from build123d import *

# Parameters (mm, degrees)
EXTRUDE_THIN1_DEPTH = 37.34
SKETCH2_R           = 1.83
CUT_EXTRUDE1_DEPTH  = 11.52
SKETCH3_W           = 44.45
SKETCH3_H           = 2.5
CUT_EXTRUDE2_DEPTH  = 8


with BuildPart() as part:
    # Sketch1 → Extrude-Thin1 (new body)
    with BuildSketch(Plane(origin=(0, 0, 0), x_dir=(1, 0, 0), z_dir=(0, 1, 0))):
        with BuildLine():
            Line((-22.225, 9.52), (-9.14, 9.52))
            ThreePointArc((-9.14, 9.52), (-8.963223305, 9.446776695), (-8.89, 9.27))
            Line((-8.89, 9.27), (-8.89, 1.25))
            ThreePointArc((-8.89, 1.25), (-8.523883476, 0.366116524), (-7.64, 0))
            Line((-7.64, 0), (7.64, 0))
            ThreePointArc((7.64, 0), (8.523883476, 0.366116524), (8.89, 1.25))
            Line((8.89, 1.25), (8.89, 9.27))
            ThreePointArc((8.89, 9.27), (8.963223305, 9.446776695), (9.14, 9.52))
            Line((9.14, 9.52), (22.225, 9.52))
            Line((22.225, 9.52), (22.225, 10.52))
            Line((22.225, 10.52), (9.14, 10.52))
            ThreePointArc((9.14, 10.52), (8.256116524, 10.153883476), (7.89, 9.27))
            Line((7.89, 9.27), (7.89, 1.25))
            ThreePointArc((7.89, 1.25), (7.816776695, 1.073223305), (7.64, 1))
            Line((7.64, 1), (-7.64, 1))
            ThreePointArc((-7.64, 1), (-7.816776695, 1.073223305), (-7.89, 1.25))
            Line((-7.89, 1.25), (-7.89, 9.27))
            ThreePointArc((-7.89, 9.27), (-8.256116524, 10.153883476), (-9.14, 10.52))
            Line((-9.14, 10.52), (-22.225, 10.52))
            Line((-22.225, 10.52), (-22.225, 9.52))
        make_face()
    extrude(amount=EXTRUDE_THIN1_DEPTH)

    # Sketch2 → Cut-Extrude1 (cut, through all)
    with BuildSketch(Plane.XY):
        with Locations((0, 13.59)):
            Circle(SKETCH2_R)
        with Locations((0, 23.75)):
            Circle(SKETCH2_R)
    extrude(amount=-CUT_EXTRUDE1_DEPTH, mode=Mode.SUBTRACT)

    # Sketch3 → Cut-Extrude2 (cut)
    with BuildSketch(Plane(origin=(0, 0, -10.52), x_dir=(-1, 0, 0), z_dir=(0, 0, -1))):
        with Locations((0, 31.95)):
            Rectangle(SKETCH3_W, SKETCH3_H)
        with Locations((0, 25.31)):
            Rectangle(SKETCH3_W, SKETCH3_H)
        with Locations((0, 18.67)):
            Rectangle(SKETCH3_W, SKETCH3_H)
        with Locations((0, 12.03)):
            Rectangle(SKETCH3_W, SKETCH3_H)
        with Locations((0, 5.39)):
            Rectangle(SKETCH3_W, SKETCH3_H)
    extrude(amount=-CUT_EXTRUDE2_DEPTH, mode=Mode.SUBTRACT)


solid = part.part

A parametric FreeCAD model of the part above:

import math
import FreeCAD as App
import Part
import Sketcher
Q = App.Units.Quantity

doc = App.newDocument("Part")
body = doc.addObject("PartDesign::Body", "Body")

# Sketch on XZ plane
sketch1 = doc.addObject("Sketcher::SketchObject", "Sketch")
body.addObject(sketch1)
sketch1.AttachmentSupport = (doc.XZ_Plane, [""])
sketch1.MapMode = "FlatFace"
sketch1.addGeometry([
    Part.LineSegment(App.Vector(-22.23, -9.52, 0), App.Vector(-9.14, -9.52, 0)),  # 0
    Part.ArcOfCircle(Part.Circle(App.Vector(-9.14, -9.27, 0), App.Vector(0, 0, 1), 0.25), math.radians(-90), math.radians(0)),  # 1
    Part.LineSegment(App.Vector(-8.89, -9.27, 0), App.Vector(-8.89, -1.25, 0)),  # 2
    Part.ArcOfCircle(Part.Circle(App.Vector(-7.64, -1.25, 0), App.Vector(0, 0, 1), 1.25), math.radians(90), math.radians(180)),  # 3
    Part.LineSegment(App.Vector(-7.64, 0, 0), App.Vector(7.64, 0, 0)),  # 4
    Part.ArcOfCircle(Part.Circle(App.Vector(7.64, -1.25, 0), App.Vector(0, 0, 1), 1.25), math.radians(0), math.radians(90)),  # 5
    Part.LineSegment(App.Vector(8.89, -1.25, 0), App.Vector(8.89, -9.27, 0)),  # 6
    Part.ArcOfCircle(Part.Circle(App.Vector(9.14, -9.27, 0), App.Vector(0, 0, 1), 0.25), math.radians(-180), math.radians(-90)),  # 7
    Part.LineSegment(App.Vector(9.14, -9.52, 0), App.Vector(22.23, -9.52, 0)),  # 8
    Part.LineSegment(App.Vector(22.23, -9.52, 0), App.Vector(22.23, -10.52, 0)),  # 9
    Part.LineSegment(App.Vector(22.23, -10.52, 0), App.Vector(9.14, -10.52, 0)),  # 10
    Part.ArcOfCircle(Part.Circle(App.Vector(9.14, -9.27, 0), App.Vector(0, 0, 1), 1.25), math.radians(-180), math.radians(-90)),  # 11
    Part.LineSegment(App.Vector(7.89, -9.27, 0), App.Vector(7.89, -1.25, 0)),  # 12
    Part.ArcOfCircle(Part.Circle(App.Vector(7.64, -1.25, 0), App.Vector(0, 0, 1), 0.25), math.radians(0), math.radians(90)),  # 13
    Part.LineSegment(App.Vector(7.64, -1, 0), App.Vector(-7.64, -1, 0)),  # 14
    Part.ArcOfCircle(Part.Circle(App.Vector(-7.64, -1.25, 0), App.Vector(0, 0, 1), 0.25), math.radians(90), math.radians(180)),  # 15
    Part.LineSegment(App.Vector(-7.89, -1.25, 0), App.Vector(-7.89, -9.27, 0)),  # 16
    Part.ArcOfCircle(Part.Circle(App.Vector(-9.14, -9.27, 0), App.Vector(0, 0, 1), 1.25), math.radians(-90), math.radians(0)),  # 17
    Part.LineSegment(App.Vector(-9.14, -10.52, 0), App.Vector(-22.23, -10.52, 0)),  # 18
    Part.LineSegment(App.Vector(-22.23, -10.52, 0), App.Vector(-22.23, -9.52, 0)),  # 19
], False)
sketch1.addConstraint([
    Sketcher.Constraint("Tangent", 0, 2, 1, 1),
    Sketcher.Constraint("Tangent", 1, 2, 2, 1),
    Sketcher.Constraint("Tangent", 2, 2, 3, 2),
    Sketcher.Constraint("Tangent", 3, 1, 4, 1),
    Sketcher.Constraint("Tangent", 4, 2, 5, 2),
    Sketcher.Constraint("Tangent", 5, 1, 6, 1),
    Sketcher.Constraint("Tangent", 6, 2, 7, 1),
    Sketcher.Constraint("Tangent", 7, 2, 8, 1),
    Sketcher.Constraint("Coincident", 8, 2, 9, 1),
    Sketcher.Constraint("Coincident", 9, 2, 10, 1),
    Sketcher.Constraint("Tangent", 10, 2, 11, 2),
    Sketcher.Constraint("Tangent", 11, 1, 12, 1),
    Sketcher.Constraint("Tangent", 12, 2, 13, 1),
    Sketcher.Constraint("Tangent", 13, 2, 14, 1),
    Sketcher.Constraint("Tangent", 14, 2, 15, 1),
    Sketcher.Constraint("Tangent", 15, 2, 16, 1),
    Sketcher.Constraint("Tangent", 16, 2, 17, 2),
    Sketcher.Constraint("Tangent", 17, 1, 18, 1),
    Sketcher.Constraint("Coincident", 18, 2, 19, 1),
    Sketcher.Constraint("Coincident", 19, 2, 0, 1),
    Sketcher.Constraint("Horizontal", 0),
    Sketcher.Constraint("Vertical", 2),
    Sketcher.Constraint("Horizontal", 4),
    Sketcher.Constraint("Vertical", 6),
    Sketcher.Constraint("Horizontal", 8),
    Sketcher.Constraint("Vertical", 9),
    Sketcher.Constraint("Horizontal", 10),
    Sketcher.Constraint("Vertical", 12),
    Sketcher.Constraint("Horizontal", 14),
    Sketcher.Constraint("Vertical", 16),
    Sketcher.Constraint("Horizontal", 18),
    Sketcher.Constraint("Vertical", 19),
    Sketcher.Constraint("Coincident", 11, 3, 7, 3),
    Sketcher.Constraint("Coincident", 13, 3, 5, 3),
    Sketcher.Constraint("Coincident", 15, 3, 3, 3),
    Sketcher.Constraint("Coincident", 17, 3, 1, 3),
    Sketcher.Constraint("Equal", 3, 5),
    Sketcher.Constraint("Equal", 1, 7),
    Sketcher.Constraint("Equal", 5, 11),
    Sketcher.Constraint("Symmetric", 3, 1, 4, 2, -1, 1),
    Sketcher.Constraint("Symmetric", 9, 2, 18, 2, -2),
    Sketcher.Constraint("DistanceY", 9, 2, 9, 1, Q("1 mm")),
    Sketcher.Constraint("Radius", 1, Q("0.25 mm")),
    Sketcher.Constraint("DistanceX", 4, 1, 4, 2, Q("15.28 mm")),
    Sketcher.Constraint("DistanceY", 2, 1, 2, 2, Q("8.02 mm")),
    Sketcher.Constraint("DistanceX", 0, 1, 0, 2, Q("13.085 mm")),
])
pad1 = doc.addObject("PartDesign::Pad", "Pad")
body.addObject(pad1)
pad1.Profile = sketch1
pad1.Length = 37.34
pad1.Reversed = True

# Sketch on XY plane
sketch2 = doc.addObject("Sketcher::SketchObject", "Sketch001")
body.addObject(sketch2)
sketch2.AttachmentSupport = (doc.XY_Plane, [""])
sketch2.MapMode = "FlatFace"
sketch2.addGeometry([
    Part.Circle(App.Vector(0, 13.6, 0), App.Vector(0, 0, 1), 1.8),
    Part.Circle(App.Vector(0, 23.8, 0), App.Vector(0, 0, 1), 1.8),
], False)
sketch2.addConstraint([
    Sketcher.Constraint("Equal", 0, 1),
    Sketcher.Constraint("PointOnObject", 0, 3, -2),
    Sketcher.Constraint("PointOnObject", 1, 3, -2),
    Sketcher.Constraint("Diameter", 0, Q("3.66 mm")),
    Sketcher.Constraint("DistanceY", -1, 1, 0, 3, Q("13.59 mm")),
    Sketcher.Constraint("DistanceY", -1, 1, 1, 3, Q("23.75 mm")),
])
pocket1 = doc.addObject("PartDesign::Pocket", "Pocket")
body.addObject(pocket1)
pocket1.Profile = sketch2
pocket1.Type = "ThroughAll"

# Sketch on XY plane
sketch3 = doc.addObject("Sketcher::SketchObject", "Sketch002")
body.addObject(sketch3)
sketch3.AttachmentSupport = (doc.XY_Plane, [""])
sketch3.MapMode = "FlatFace"
sketch3.AttachmentOffset = App.Placement(App.Vector(0, 0, -10.52), App.Rotation())
sketch3.addGeometry([
    Part.LineSegment(App.Vector(22.2, 33.2, 0), App.Vector(22.2, 30.7, 0)),  # 0
    Part.LineSegment(App.Vector(22.2, 30.7, 0), App.Vector(-22.2, 30.7, 0)),  # 1
    Part.LineSegment(App.Vector(-22.2, 30.7, 0), App.Vector(-22.2, 33.2, 0)),  # 2
    Part.LineSegment(App.Vector(-22.2, 33.2, 0), App.Vector(22.2, 33.2, 0)),  # 3
    Part.LineSegment(App.Vector(22.2, 26.6, 0), App.Vector(22.2, 24.1, 0)),  # 4
    Part.LineSegment(App.Vector(22.2, 24.1, 0), App.Vector(-22.2, 24.1, 0)),  # 5
    Part.LineSegment(App.Vector(-22.2, 24.1, 0), App.Vector(-22.2, 26.6, 0)),  # 6
    Part.LineSegment(App.Vector(-22.2, 26.6, 0), App.Vector(22.2, 26.6, 0)),  # 7
    Part.LineSegment(App.Vector(22.2, 19.9, 0), App.Vector(22.2, 17.4, 0)),  # 8
    Part.LineSegment(App.Vector(22.2, 17.4, 0), App.Vector(-22.2, 17.4, 0)),  # 9
    Part.LineSegment(App.Vector(-22.2, 17.4, 0), App.Vector(-22.2, 19.9, 0)),  # 10
    Part.LineSegment(App.Vector(-22.2, 19.9, 0), App.Vector(22.2, 19.9, 0)),  # 11
    Part.LineSegment(App.Vector(22.2, 13.3, 0), App.Vector(22.2, 10.8, 0)),  # 12
    Part.LineSegment(App.Vector(22.2, 10.8, 0), App.Vector(-22.2, 10.8, 0)),  # 13
    Part.LineSegment(App.Vector(-22.2, 10.8, 0), App.Vector(-22.2, 13.3, 0)),  # 14
    Part.LineSegment(App.Vector(-22.2, 13.3, 0), App.Vector(22.2, 13.3, 0)),  # 15
    Part.LineSegment(App.Vector(22.2, 6.6, 0), App.Vector(22.2, 4.1, 0)),  # 16
    Part.LineSegment(App.Vector(22.2, 4.1, 0), App.Vector(-22.2, 4.1, 0)),  # 17
    Part.LineSegment(App.Vector(-22.2, 4.1, 0), App.Vector(-22.2, 6.6, 0)),  # 18
    Part.LineSegment(App.Vector(-22.2, 6.6, 0), App.Vector(22.2, 6.6, 0)),  # 19
], False)
sketch3.addConstraint([
    Sketcher.Constraint("Coincident", 0, 2, 1, 1),
    Sketcher.Constraint("Coincident", 1, 2, 2, 1),
    Sketcher.Constraint("Coincident", 2, 2, 3, 1),
    Sketcher.Constraint("Coincident", 3, 2, 0, 1),
    Sketcher.Constraint("Coincident", 4, 2, 5, 1),
    Sketcher.Constraint("Coincident", 5, 2, 6, 1),
    Sketcher.Constraint("Coincident", 6, 2, 7, 1),
    Sketcher.Constraint("Coincident", 7, 2, 4, 1),
    Sketcher.Constraint("Coincident", 8, 2, 9, 1),
    Sketcher.Constraint("Coincident", 9, 2, 10, 1),
    Sketcher.Constraint("Coincident", 10, 2, 11, 1),
    Sketcher.Constraint("Coincident", 11, 2, 8, 1),
    Sketcher.Constraint("Coincident", 12, 2, 13, 1),
    Sketcher.Constraint("Coincident", 13, 2, 14, 1),
    Sketcher.Constraint("Coincident", 14, 2, 15, 1),
    Sketcher.Constraint("Coincident", 15, 2, 12, 1),
    Sketcher.Constraint("Coincident", 16, 2, 17, 1),
    Sketcher.Constraint("Coincident", 17, 2, 18, 1),
    Sketcher.Constraint("Coincident", 18, 2, 19, 1),
    Sketcher.Constraint("Coincident", 19, 2, 16, 1),
    Sketcher.Constraint("Vertical", 0),
    Sketcher.Constraint("Horizontal", 1),
    Sketcher.Constraint("Vertical", 2),
    Sketcher.Constraint("Horizontal", 3),
    Sketcher.Constraint("Vertical", 4),
    Sketcher.Constraint("Horizontal", 5),
    Sketcher.Constraint("Vertical", 6),
    Sketcher.Constraint("Horizontal", 7),
    Sketcher.Constraint("Vertical", 8),
    Sketcher.Constraint("Horizontal", 9),
    Sketcher.Constraint("Vertical", 10),
    Sketcher.Constraint("Horizontal", 11),
    Sketcher.Constraint("Vertical", 12),
    Sketcher.Constraint("Horizontal", 13),
    Sketcher.Constraint("Vertical", 14),
    Sketcher.Constraint("Horizontal", 15),
    Sketcher.Constraint("Vertical", 16),
    Sketcher.Constraint("Horizontal", 17),
    Sketcher.Constraint("Vertical", 18),
    Sketcher.Constraint("Horizontal", 19),
    Sketcher.Constraint("Vertical", 3, 2, 4, 2),
    Sketcher.Constraint("Vertical", 2, 2, 5, 2),
    Sketcher.Constraint("Vertical", 7, 2, 8, 2),
    Sketcher.Constraint("Vertical", 6, 2, 9, 2),
    Sketcher.Constraint("Vertical", 11, 2, 12, 2),
    Sketcher.Constraint("Vertical", 10, 2, 13, 2),
    Sketcher.Constraint("Vertical", 15, 2, 16, 2),
    Sketcher.Constraint("Vertical", 14, 2, 17, 2),
    Sketcher.Constraint("Equal", 2, 4),
    Sketcher.Constraint("Equal", 6, 8),
    Sketcher.Constraint("Equal", 10, 12),
    Sketcher.Constraint("Equal", 14, 16),
    Sketcher.Constraint("DistanceY", 0, 2, 0, 1, Q("2.5 mm")),
    Sketcher.Constraint("DistanceX", 1, 2, 1, 1, Q("44.45 mm")),
    Sketcher.Constraint("DistanceY", -1, 1, 0, 2, Q("30.7 mm")),
    Sketcher.Constraint("DistanceY", -1, 1, 4, 2, Q("24.06 mm")),
    Sketcher.Constraint("DistanceY", -1, 1, 8, 2, Q("17.42 mm")),
    Sketcher.Constraint("DistanceY", -1, 1, 12, 2, Q("10.78 mm")),
    Sketcher.Constraint("DistanceY", -1, 1, 16, 2, Q("4.14 mm")),
    Sketcher.Constraint("DistanceX", -1, 1, 0, 2, Q("22.225 mm")),
])
pocket2 = doc.addObject("PartDesign::Pocket", "Pocket001")
body.addObject(pocket2)
pocket2.Profile = sketch3
pocket2.Length = 8
pocket2.Reversed = True

doc.recompute()
